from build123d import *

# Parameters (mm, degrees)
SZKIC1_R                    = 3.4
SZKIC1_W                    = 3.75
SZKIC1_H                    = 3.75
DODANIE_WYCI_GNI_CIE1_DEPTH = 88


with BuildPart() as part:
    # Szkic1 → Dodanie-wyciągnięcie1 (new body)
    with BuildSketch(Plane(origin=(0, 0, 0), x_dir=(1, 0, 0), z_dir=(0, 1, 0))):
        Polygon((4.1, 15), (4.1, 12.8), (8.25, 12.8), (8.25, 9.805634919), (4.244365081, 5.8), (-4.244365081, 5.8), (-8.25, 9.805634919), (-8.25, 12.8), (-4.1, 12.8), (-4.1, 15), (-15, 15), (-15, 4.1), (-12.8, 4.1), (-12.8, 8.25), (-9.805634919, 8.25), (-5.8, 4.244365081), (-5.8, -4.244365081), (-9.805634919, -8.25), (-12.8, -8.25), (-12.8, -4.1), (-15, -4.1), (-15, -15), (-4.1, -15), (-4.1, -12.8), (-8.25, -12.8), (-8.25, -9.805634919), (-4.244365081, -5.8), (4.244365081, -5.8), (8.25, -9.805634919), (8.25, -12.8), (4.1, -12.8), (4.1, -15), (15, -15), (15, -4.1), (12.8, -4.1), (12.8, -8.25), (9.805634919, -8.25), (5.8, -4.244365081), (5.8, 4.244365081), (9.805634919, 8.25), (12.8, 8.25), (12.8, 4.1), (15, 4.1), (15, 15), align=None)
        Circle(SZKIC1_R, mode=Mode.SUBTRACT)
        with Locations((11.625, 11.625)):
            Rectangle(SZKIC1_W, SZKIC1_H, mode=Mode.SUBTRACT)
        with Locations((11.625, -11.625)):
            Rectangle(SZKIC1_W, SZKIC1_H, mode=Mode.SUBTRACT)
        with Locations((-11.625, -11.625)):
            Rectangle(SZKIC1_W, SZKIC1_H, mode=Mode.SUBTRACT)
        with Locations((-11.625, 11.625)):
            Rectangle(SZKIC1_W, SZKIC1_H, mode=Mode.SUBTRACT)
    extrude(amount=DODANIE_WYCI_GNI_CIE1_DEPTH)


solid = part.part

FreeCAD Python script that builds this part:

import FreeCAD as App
import Part
import Sketcher

V = App.Vector

doc = App.newDocument("Part")
body = doc.addObject("PartDesign::Body", "Body")

# Sketch on XZ plane
sketch1 = body.newObject("Sketcher::SketchObject", "Sketch")
sketch1.AttachmentSupport = (doc.getObject("XZ_Plane"), [""])
sketch1.MapMode = "FlatFace"
sketch1.addGeometry(Part.LineSegment(V(4.1, -15, 0), V(4.1, -12.8, 0)), False)
sketch1.addGeometry(Part.LineSegment(V(4.1, -12.8, 0), V(8.2, -12.8, 0)), False)
sketch1.addGeometry(Part.LineSegment(V(8.2, -12.8, 0), V(8.2, -9.8, 0)), False)
sketch1.addGeometry(Part.LineSegment(V(8.2, -9.8, 0), V(4.2, -5.8, 0)), False)
sketch1.addGeometry(Part.LineSegment(V(4.2, -5.8, 0), V(-4.2, -5.8, 0)), False)
sketch1.addGeometry(Part.LineSegment(V(-4.2, -5.8, 0), V(-8.2, -9.8, 0)), False)
sketch1.addGeometry(Part.LineSegment(V(-8.2, -9.8, 0), V(-8.2, -12.8, 0)), False)
sketch1.addGeometry(Part.LineSegment(V(-8.2, -12.8, 0), V(-4.1, -12.8, 0)), False)
sketch1.addGeometry(Part.LineSegment(V(-4.1, -12.8, 0), V(-4.1, -15, 0)), False)
sketch1.addGeometry(Part.LineSegment(V(-4.1, -15, 0), V(-15, -15, 0)), False)
sketch1.addGeometry(Part.LineSegment(V(-15, -15, 0), V(-15, -4.1, 0)), False)
sketch1.addGeometry(Part.LineSegment(V(-15, -4.1, 0), V(-12.8, -4.1, 0)), False)
sketch1.addGeometry(Part.LineSegment(V(-12.8, -4.1, 0), V(-12.8, -8.2, 0)), False)
sketch1.addGeometry(Part.LineSegment(V(-12.8, -8.2, 0), V(-9.8, -8.2, 0)), False)
sketch1.addGeometry(Part.LineSegment(V(-9.8, -8.2, 0), V(-5.8, -4.2, 0)), False)
sketch1.addGeometry(Part.LineSegment(V(-5.8, -4.2, 0), V(-5.8, 4.2, 0)), False)
sketch1.addGeometry(Part.LineSegment(V(-5.8, 4.2, 0), V(-9.8, 8.2, 0)), False)
sketch1.addGeometry(Part.LineSegment(V(-9.8, 8.2, 0), V(-12.8, 8.2, 0)), False)
sketch1.addGeometry(Part.LineSegment(V(-12.8, 8.2, 0), V(-12.8, 4.1, 0)), False)
sketch1.addGeometry(Part.LineSegment(V(-12.8, 4.1, 0), V(-15, 4.1, 0)), False)
sketch1.addGeometry(Part.LineSegment(V(-15, 4.1, 0), V(-15, 15, 0)), False)
sketch1.addGeometry(Part.LineSegment(V(-15, 15, 0), V(-4.1, 15, 0)), False)
sketch1.addGeometry(Part.LineSegment(V(-4.1, 15, 0), V(-4.1, 12.8, 0)), False)
sketch1.addGeometry(Part.LineSegment(V(-4.1, 12.8, 0), V(-8.2, 12.8, 0)), False)
sketch1.addGeometry(Part.LineSegment(V(-8.2, 12.8, 0), V(-8.2, 9.8, 0)), False)
sketch1.addGeometry(Part.LineSegment(V(-8.2, 9.8, 0), V(-4.2, 5.8, 0)), False)
sketch1.addGeometry(Part.LineSegment(V(-4.2, 5.8, 0), V(4.2, 5.8, 0)), False)
sketch1.addGeometry(Part.LineSegment(V(4.2, 5.8, 0), V(8.2, 9.8, 0)), False)
sketch1.addGeometry(Part.LineSegment(V(8.2, 9.8, 0), V(8.2, 12.8, 0)), False)
sketch1.addGeometry(Part.LineSegment(V(8.2, 12.8, 0), V(4.1, 12.8, 0)), False)
sketch1.addGeometry(Part.LineSegment(V(4.1, 12.8, 0), V(4.1, 15, 0)), False)
sketch1.addGeometry(Part.LineSegment(V(4.1, 15, 0), V(15, 15, 0)), False)
sketch1.addGeometry(Part.LineSegment(V(15, 15, 0), V(15, 4.1, 0)), False)
sketch1.addGeometry(Part.LineSegment(V(15, 4.1, 0), V(12.8, 4.1, 0)), False)
sketch1.addGeometry(Part.LineSegment(V(12.8, 4.1, 0), V(12.8, 8.2, 0)), False)
sketch1.addGeometry(Part.LineSegment(V(12.8, 8.2, 0), V(9.8, 8.2, 0)), False)
sketch1.addGeometry(Part.LineSegment(V(9.8, 8.2, 0), V(5.8, 4.2, 0)), False)
sketch1.addGeometry(Part.LineSegment(V(5.8, 4.2, 0), V(5.8, -4.2, 0)), False)
sketch1.addGeometry(Part.LineSegment(V(5.8, -4.2, 0), V(9.8, -8.2, 0)), False)
sketch1.addGeometry(Part.LineSegment(V(9.8, -8.2, 0), V(12.8, -8.2, 0)), False)
sketch1.addGeometry(Part.LineSegment(V(12.8, -8.2, 0), V(12.8, -4.1, 0)), False)
sketch1.addGeometry(Part.LineSegment(V(12.8, -4.1, 0), V(15, -4.1, 0)), False)
sketch1.addGeometry(Part.LineSegment(V(15, -4.1, 0), V(15, -15, 0)), False)
sketch1.addGeometry(Part.LineSegment(V(15, -15, 0), V(4.1, -15, 0)), False)
sketch1.addGeometry(Part.LineSegment(V(-9.8, 13.5, 0), V(-13.5, 13.5, 0)), False)
sketch1.addGeometry(Part.LineSegment(V(-13.5, 13.5, 0), V(-13.5, 9.8, 0)), False)
sketch1.addGeometry(Part.LineSegment(V(-13.5, 9.8, 0), V(-9.8, 9.8, 0)), False)
sketch1.addGeometry(Part.LineSegment(V(-9.8, 9.8, 0), V(-9.8, 13.5, 0)), False)
sketch1.addGeometry(Part.LineSegment(V(13.5, 13.5, 0), V(9.8, 13.5, 0)), False)
sketch1.addGeometry(Part.LineSegment(V(9.8, 13.5, 0), V(9.8, 9.8, 0)), False)
sketch1.addGeometry(Part.LineSegment(V(9.8, 9.8, 0), V(13.5, 9.8, 0)), False)
sketch1.addGeometry(Part.LineSegment(V(13.5, 9.8, 0), V(13.5, 13.5, 0)), False)
sketch1.addGeometry(Part.LineSegment(V(-9.8, -9.8, 0), V(-13.5, -9.8, 0)), False)
sketch1.addGeometry(Part.LineSegment(V(-13.5, -9.8, 0), V(-13.5, -13.5, 0)), False)
sketch1.addGeometry(Part.LineSegment(V(-13.5, -13.5, 0), V(-9.8, -13.5, 0)), False)
sketch1.addGeometry(Part.LineSegment(V(-9.8, -13.5, 0), V(-9.8, -9.8, 0)), False)
sketch1.addGeometry(Part.Circle(V(0, 0, 0), V(0, 0, 1), 3.4), False)
sketch1.addGeometry(Part.LineSegment(V(13.5, -9.8, 0), V(9.8, -9.8, 0)), False)
sketch1.addGeometry(Part.LineSegment(V(9.8, -9.8, 0), V(9.8, -13.5, 0)), False)
sketch1.addGeometry(Part.LineSegment(V(9.8, -13.5, 0), V(13.5, -13.5, 0)), False)
sketch1.addGeometry(Part.LineSegment(V(13.5, -13.5, 0), V(13.5, -9.8, 0)), False)
sketch1.addConstraint(Sketcher.Constraint("Coincident", 0, 2, 1, 1))
sketch1.addConstraint(Sketcher.Constraint("Coincident", 1, 2, 2, 1))
sketch1.addConstraint(Sketcher.Constraint("Coincident", 2, 2, 3, 1))
sketch1.addConstraint(Sketcher.Constraint("Coincident", 3, 2, 4, 1))
sketch1.addConstraint(Sketcher.Constraint("Coincident", 4, 2, 5, 1))
sketch1.addConstraint(Sketcher.Constraint("Coincident", 5, 2, 6, 1))
sketch1.addConstraint(Sketcher.Constraint("Coincident", 6, 2, 7, 1))
sketch1.addConstraint(Sketcher.Constraint("Coincident", 7, 2, 8, 1))
sketch1.addConstraint(Sketcher.Constraint("Coincident", 8, 2, 9, 1))
sketch1.addConstraint(Sketcher.Constraint("Coincident", 9, 2, 10, 1))
sketch1.addConstraint(Sketcher.Constraint("Coincident", 10, 2, 11, 1))
sketch1.addConstraint(Sketcher.Constraint("Coincident", 11, 2, 12, 1))
sketch1.addConstraint(Sketcher.Constraint("Coincident", 12, 2, 13, 1))
sketch1.addConstraint(Sketcher.Constraint("Coincident", 13, 2, 14, 1))
sketch1.addConstraint(Sketcher.Constraint("Coincident", 14, 2, 15, 1))
sketch1.addConstraint(Sketcher.Constraint("Coincident", 15, 2, 16, 1))
sketch1.addConstraint(Sketcher.Constraint("Coincident", 16, 2, 17, 1))
sketch1.addConstraint(Sketcher.Constraint("Coincident", 17, 2, 18, 1))
sketch1.addConstraint(Sketcher.Constraint("Coincident", 18, 2, 19, 1))
sketch1.addConstraint(Sketcher.Constraint("Coincident", 19, 2, 20, 1))
sketch1.addConstraint(Sketcher.Constraint("Coincident", 20, 2, 21, 1))
sketch1.addConstraint(Sketcher.Constraint("Coincident", 21, 2, 22, 1))
sketch1.addConstraint(Sketcher.Constraint("Coincident", 22, 2, 23, 1))
sketch1.addConstraint(Sketcher.Constraint("Coincident", 23, 2, 24, 1))
sketch1.addConstraint(Sketcher.Constraint("Coincident", 24, 2, 25, 1))
sketch1.addConstraint(Sketcher.Constraint("Coincident", 25, 2, 26, 1))
sketch1.addConstraint(Sketcher.Constraint("Coincident", 26, 2, 27, 1))
sketch1.addConstraint(Sketcher.Constraint("Coincident", 27, 2, 28, 1))
sketch1.addConstraint(Sketcher.Constraint("Coincident", 28, 2, 29, 1))
sketch1.addConstraint(Sketcher.Constraint("Coincident", 29, 2, 30, 1))
sketch1.addConstraint(Sketcher.Constraint("Coincident", 30, 2, 31, 1))
sketch1.addConstraint(Sketcher.Constraint("Coincident", 31, 2, 32, 1))
sketch1.addConstraint(Sketcher.Constraint("Coincident", 32, 2, 33, 1))
sketch1.addConstraint(Sketcher.Constraint("Coincident", 33, 2, 34, 1))
sketch1.addConstraint(Sketcher.Constraint("Coincident", 34, 2, 35, 1))
sketch1.addConstraint(Sketcher.Constraint("Coincident", 35, 2, 36, 1))
sketch1.addConstraint(Sketcher.Constraint("Coincident", 36, 2, 37, 1))
sketch1.addConstraint(Sketcher.Constraint("Coincident", 37, 2, 38, 1))
sketch1.addConstraint(Sketcher.Constraint("Coincident", 38, 2, 39, 1))
sketch1.addConstraint(Sketcher.Constraint("Coincident", 39, 2, 40, 1))
sketch1.addConstraint(Sketcher.Constraint("Coincident", 40, 2, 41, 1))
sketch1.addConstraint(Sketcher.Constraint("Coincident", 41, 2, 42, 1))
sketch1.addConstraint(Sketcher.Constraint("Coincident", 42, 2, 43, 1))
sketch1.addConstraint(Sketcher.Constraint("Coincident", 43, 2, 0, 1))
sketch1.addConstraint(Sketcher.Constraint("Coincident", 44, 2, 45, 1))
sketch1.addConstraint(Sketcher.Constraint("Coincident", 45, 2, 46, 1))
sketch1.addConstraint(Sketcher.Constraint("Coincident", 46, 2, 47, 1))
sketch1.addConstraint(Sketcher.Constraint("Coincident", 47, 2, 44, 1))
sketch1.addConstraint(Sketcher.Constraint("Coincident", 48, 2, 49, 1))
sketch1.addConstraint(Sketcher.Constraint("Coincident", 49, 2, 50, 1))
sketch1.addConstraint(Sketcher.Constraint("Coincident", 50, 2, 51, 1))
sketch1.addConstraint(Sketcher.Constraint("Coincident", 51, 2, 48, 1))
sketch1.addConstraint(Sketcher.Constraint("Coincident", 52, 2, 53, 1))
sketch1.addConstraint(Sketcher.Constraint("Coincident", 53, 2, 54, 1))
sketch1.addConstraint(Sketcher.Constraint("Coincident", 54, 2, 55, 1))
sketch1.addConstraint(Sketcher.Constraint("Coincident", 55, 2, 52, 1))
sketch1.addConstraint(Sketcher.Constraint("Coincident", 57, 2, 58, 1))
sketch1.addConstraint(Sketcher.Constraint("Coincident", 58, 2, 59, 1))
sketch1.addConstraint(Sketcher.Constraint("Coincident", 59, 2, 60, 1))
sketch1.addConstraint(Sketcher.Constraint("Coincident", 60, 2, 57, 1))
sketch1.addConstraint(Sketcher.Constraint("Vertical", 0))
sketch1.addConstraint(Sketcher.Constraint("Horizontal", 1))
sketch1.addConstraint(Sketcher.Constraint("Vertical", 2))
sketch1.addConstraint(Sketcher.Constraint("Horizontal", 4))
sketch1.addConstraint(Sketcher.Constraint("Vertical", 6))
sketch1.addConstraint(Sketcher.Constraint("Horizontal", 7))
sketch1.addConstraint(Sketcher.Constraint("Vertical", 8))
sketch1.addConstraint(Sketcher.Constraint("Horizontal", 9))
sketch1.addConstraint(Sketcher.Constraint("Vertical", 10))
sketch1.addConstraint(Sketcher.Constraint("Horizontal", 11))
sketch1.addConstraint(Sketcher.Constraint("Vertical", 12))
sketch1.addConstraint(Sketcher.Constraint("Horizontal", 13))
sketch1.addConstraint(Sketcher.Constraint("Vertical", 15))
sketch1.addConstraint(Sketcher.Constraint("Horizontal", 17))
sketch1.addConstraint(Sketcher.Constraint("Vertical", 18))
sketch1.addConstraint(Sketcher.Constraint("Horizontal", 19))
sketch1.addConstraint(Sketcher.Constraint("Vertical", 20))
sketch1.addConstraint(Sketcher.Constraint("Horizontal", 21))
sketch1.addConstraint(Sketcher.Constraint("Vertical", 22))
sketch1.addConstraint(Sketcher.Constraint("Horizontal", 23))
sketch1.addConstraint(Sketcher.Constraint("Vertical", 24))
sketch1.addConstraint(Sketcher.Constraint("Horizontal", 26))
sketch1.addConstraint(Sketcher.Constraint("Vertical", 28))
sketch1.addConstraint(Sketcher.Constraint("Horizontal", 29))
sketch1.addConstraint(Sketcher.Constraint("Vertical", 30))
sketch1.addConstraint(Sketcher.Constraint("Horizontal", 31))
sketch1.addConstraint(Sketcher.Constraint("Vertical", 32))
sketch1.addConstraint(Sketcher.Constraint("Horizontal", 33))
sketch1.addConstraint(Sketcher.Constraint("Vertical", 34))
sketch1.addConstraint(Sketcher.Constraint("Horizontal", 35))
sketch1.addConstraint(Sketcher.Constraint("Vertical", 37))
sketch1.addConstraint(Sketcher.Constraint("Horizontal", 39))
sketch1.addConstraint(Sketcher.Constraint("Vertical", 40))
sketch1.addConstraint(Sketcher.Constraint("Horizontal", 41))
sketch1.addConstraint(Sketcher.Constraint("Vertical", 42))
sketch1.addConstraint(Sketcher.Constraint("Horizontal", 43))
sketch1.addConstraint(Sketcher.Constraint("Horizontal", 44))
sketch1.addConstraint(Sketcher.Constraint("Vertical", 45))
sketch1.addConstraint(Sketcher.Constraint("Horizontal", 46))
sketch1.addConstraint(Sketcher.Constraint("Vertical", 47))
sketch1.addConstraint(Sketcher.Constraint("Horizontal", 48))
sketch1.addConstraint(Sketcher.Constraint("Vertical", 49))
sketch1.addConstraint(Sketcher.Constraint("Horizontal", 50))
sketch1.addConstraint(Sketcher.Constraint("Vertical", 51))
sketch1.addConstraint(Sketcher.Constraint("Horizontal", 52))
sketch1.addConstraint(Sketcher.Constraint("Vertical", 53))
sketch1.addConstraint(Sketcher.Constraint("Horizontal", 54))
sketch1.addConstraint(Sketcher.Constraint("Vertical", 55))
sketch1.addConstraint(Sketcher.Constraint("Horizontal", 57))
sketch1.addConstraint(Sketcher.Constraint("Vertical", 58))
sketch1.addConstraint(Sketcher.Constraint("Horizontal", 59))
sketch1.addConstraint(Sketcher.Constraint("Vertical", 60))
sketch1.addConstraint(Sketcher.Constraint("Coincident", 56, 3, -1, 1))
sketch1.addConstraint(Sketcher.Constraint("Symmetric", 0, 2, 22, 2, -1, 1))
sketch1.addConstraint(Sketcher.Constraint("Symmetric", 2, 2, 24, 2, -1, 1))
sketch1.addConstraint(Sketcher.Constraint("Symmetric", 3, 2, 25, 2, -1, 1))
sketch1.addConstraint(Sketcher.Constraint("Symmetric", 5, 2, 27, 2, -1, 1))
sketch1.addConstraint(Sketcher.Constraint("Symmetric", 7, 2, 29, 2, -1, 1))
sketch1.addConstraint(Sketcher.Constraint("Symmetric", 9, 2, 31, 2, -1, 1))
sketch1.addConstraint(Sketcher.Constraint("Symmetric", 11, 2, 33, 2, -1, 1))
sketch1.addConstraint(Sketcher.Constraint("Symmetric", 13, 2, 35, 2, -1, 1))
sketch1.addConstraint(Sketcher.Constraint("Symmetric", 14, 2, 36, 2, -1, 1))
sketch1.addConstraint(Sketcher.Constraint("Symmetric", 16, 2, 38, 2, -1, 1))
sketch1.addConstraint(Sketcher.Constraint("Symmetric", 18, 2, 40, 2, -1, 1))
sketch1.addConstraint(Sketcher.Constraint("Symmetric", 20, 2, 42, 2, -1, 1))
sketch1.addConstraint(Sketcher.Constraint("Symmetric", 50, 2, 52, 2, -1, 1))
sketch1.addConstraint(Sketcher.Constraint("Symmetric", 48, 2, 54, 2, -1, 1))
sketch1.addConstraint(Sketcher.Constraint("Symmetric", 46, 2, 57, 2, -1, 1))
sketch1.addConstraint(Sketcher.Constraint("Symmetric", 44, 2, 59, 2, -1, 1))
sketch1.addConstraint(Sketcher.Constraint("Symmetric", 2, 2, 5, 2, -2))
sketch1.addConstraint(Sketcher.Constraint("Symmetric", 0, 2, 7, 2, -2))
sketch1.addConstraint(Sketcher.Constraint("Symmetric", 20, 2, 31, 2, -2))
sketch1.addConstraint(Sketcher.Constraint("Symmetric", 18, 2, 33, 2, -2))
sketch1.addConstraint(Sketcher.Constraint("Symmetric", 16, 2, 35, 2, -2))
sketch1.addConstraint(Sketcher.Constraint("Symmetric", 47, 2, 48, 2, -2))
sketch1.addConstraint(Sketcher.Constraint("Symmetric", 45, 2, 50, 2, -2))
sketch1.addConstraint(Sketcher.Constraint("Perpendicular", 3, 5))
sketch1.addConstraint(Sketcher.Constraint("Parallel", 5, 14))
sketch1.addConstraint(Sketcher.Constraint("Perpendicular", 14, 16))
sketch1.addConstraint(Sketcher.Constraint("Perpendicular", 25, 27))
sketch1.addConstraint(Sketcher.Constraint("Perpendicular", 36, 38))
sketch1.addConstraint(Sketcher.Constraint("Horizontal", 15, 2, 36, 2))
sketch1.addConstraint(Sketcher.Constraint("Equal", 41, 0))
sketch1.addConstraint(Sketcher.Constraint("Equal", 39, 2))
sketch1.addConstraint(Sketcher.Constraint("Equal", 43, 10))
sketch1.addConstraint(Sketcher.Constraint("Equal", 29, 12))
sketch1.addConstraint(Sketcher.Constraint("Equal", 26, 15))
sketch1.addConstraint(Sketcher.Constraint("Equal", 59, 45))
sketch1.addConstraint(Sketcher.Constraint("Equal", 5, 14))
sketch1.addConstraint(Sketcher.Constraint("Diameter", 56, 6.8))
sketch1.addConstraint(Sketcher.Constraint("DistanceX", 9, 2, 9, 1, 10.9))
sketch1.addConstraint(Sketcher.Constraint("DistanceX", 11, 1, 11, 2, 2.2))
sketch1.addConstraint(Sketcher.Constraint("DistanceY", 8, 2, -1, 1, 15.0))
sketch1.addConstraint(Sketcher.Constraint("DistanceX", 1, 1, 1, 2, 4.15))
sketch1.addConstraint(Sketcher.Constraint("DistanceX", 44, 2, 44, 1, 3.75))
sketch1.addConstraint(Sketcher.Constraint("DistanceY", 3, 2, -1, 1, 5.8))
sketch1.addConstraint(Sketcher.Constraint("DistanceX", 44, 2, -1, 1, 13.5))
sketch1.addConstraint(Sketcher.Constraint("DistanceY", -1, 1, 44, 2, 13.5))
sketch1.addConstraint(Sketcher.Constraint("DistanceX", 4, 2, 4, 1, 8.48873))
pad1 = body.newObject("PartDesign::Pad", "Pad")
pad1.Profile = sketch1
pad1.Length = 88
pad1.Reversed = True

doc.recompute()
